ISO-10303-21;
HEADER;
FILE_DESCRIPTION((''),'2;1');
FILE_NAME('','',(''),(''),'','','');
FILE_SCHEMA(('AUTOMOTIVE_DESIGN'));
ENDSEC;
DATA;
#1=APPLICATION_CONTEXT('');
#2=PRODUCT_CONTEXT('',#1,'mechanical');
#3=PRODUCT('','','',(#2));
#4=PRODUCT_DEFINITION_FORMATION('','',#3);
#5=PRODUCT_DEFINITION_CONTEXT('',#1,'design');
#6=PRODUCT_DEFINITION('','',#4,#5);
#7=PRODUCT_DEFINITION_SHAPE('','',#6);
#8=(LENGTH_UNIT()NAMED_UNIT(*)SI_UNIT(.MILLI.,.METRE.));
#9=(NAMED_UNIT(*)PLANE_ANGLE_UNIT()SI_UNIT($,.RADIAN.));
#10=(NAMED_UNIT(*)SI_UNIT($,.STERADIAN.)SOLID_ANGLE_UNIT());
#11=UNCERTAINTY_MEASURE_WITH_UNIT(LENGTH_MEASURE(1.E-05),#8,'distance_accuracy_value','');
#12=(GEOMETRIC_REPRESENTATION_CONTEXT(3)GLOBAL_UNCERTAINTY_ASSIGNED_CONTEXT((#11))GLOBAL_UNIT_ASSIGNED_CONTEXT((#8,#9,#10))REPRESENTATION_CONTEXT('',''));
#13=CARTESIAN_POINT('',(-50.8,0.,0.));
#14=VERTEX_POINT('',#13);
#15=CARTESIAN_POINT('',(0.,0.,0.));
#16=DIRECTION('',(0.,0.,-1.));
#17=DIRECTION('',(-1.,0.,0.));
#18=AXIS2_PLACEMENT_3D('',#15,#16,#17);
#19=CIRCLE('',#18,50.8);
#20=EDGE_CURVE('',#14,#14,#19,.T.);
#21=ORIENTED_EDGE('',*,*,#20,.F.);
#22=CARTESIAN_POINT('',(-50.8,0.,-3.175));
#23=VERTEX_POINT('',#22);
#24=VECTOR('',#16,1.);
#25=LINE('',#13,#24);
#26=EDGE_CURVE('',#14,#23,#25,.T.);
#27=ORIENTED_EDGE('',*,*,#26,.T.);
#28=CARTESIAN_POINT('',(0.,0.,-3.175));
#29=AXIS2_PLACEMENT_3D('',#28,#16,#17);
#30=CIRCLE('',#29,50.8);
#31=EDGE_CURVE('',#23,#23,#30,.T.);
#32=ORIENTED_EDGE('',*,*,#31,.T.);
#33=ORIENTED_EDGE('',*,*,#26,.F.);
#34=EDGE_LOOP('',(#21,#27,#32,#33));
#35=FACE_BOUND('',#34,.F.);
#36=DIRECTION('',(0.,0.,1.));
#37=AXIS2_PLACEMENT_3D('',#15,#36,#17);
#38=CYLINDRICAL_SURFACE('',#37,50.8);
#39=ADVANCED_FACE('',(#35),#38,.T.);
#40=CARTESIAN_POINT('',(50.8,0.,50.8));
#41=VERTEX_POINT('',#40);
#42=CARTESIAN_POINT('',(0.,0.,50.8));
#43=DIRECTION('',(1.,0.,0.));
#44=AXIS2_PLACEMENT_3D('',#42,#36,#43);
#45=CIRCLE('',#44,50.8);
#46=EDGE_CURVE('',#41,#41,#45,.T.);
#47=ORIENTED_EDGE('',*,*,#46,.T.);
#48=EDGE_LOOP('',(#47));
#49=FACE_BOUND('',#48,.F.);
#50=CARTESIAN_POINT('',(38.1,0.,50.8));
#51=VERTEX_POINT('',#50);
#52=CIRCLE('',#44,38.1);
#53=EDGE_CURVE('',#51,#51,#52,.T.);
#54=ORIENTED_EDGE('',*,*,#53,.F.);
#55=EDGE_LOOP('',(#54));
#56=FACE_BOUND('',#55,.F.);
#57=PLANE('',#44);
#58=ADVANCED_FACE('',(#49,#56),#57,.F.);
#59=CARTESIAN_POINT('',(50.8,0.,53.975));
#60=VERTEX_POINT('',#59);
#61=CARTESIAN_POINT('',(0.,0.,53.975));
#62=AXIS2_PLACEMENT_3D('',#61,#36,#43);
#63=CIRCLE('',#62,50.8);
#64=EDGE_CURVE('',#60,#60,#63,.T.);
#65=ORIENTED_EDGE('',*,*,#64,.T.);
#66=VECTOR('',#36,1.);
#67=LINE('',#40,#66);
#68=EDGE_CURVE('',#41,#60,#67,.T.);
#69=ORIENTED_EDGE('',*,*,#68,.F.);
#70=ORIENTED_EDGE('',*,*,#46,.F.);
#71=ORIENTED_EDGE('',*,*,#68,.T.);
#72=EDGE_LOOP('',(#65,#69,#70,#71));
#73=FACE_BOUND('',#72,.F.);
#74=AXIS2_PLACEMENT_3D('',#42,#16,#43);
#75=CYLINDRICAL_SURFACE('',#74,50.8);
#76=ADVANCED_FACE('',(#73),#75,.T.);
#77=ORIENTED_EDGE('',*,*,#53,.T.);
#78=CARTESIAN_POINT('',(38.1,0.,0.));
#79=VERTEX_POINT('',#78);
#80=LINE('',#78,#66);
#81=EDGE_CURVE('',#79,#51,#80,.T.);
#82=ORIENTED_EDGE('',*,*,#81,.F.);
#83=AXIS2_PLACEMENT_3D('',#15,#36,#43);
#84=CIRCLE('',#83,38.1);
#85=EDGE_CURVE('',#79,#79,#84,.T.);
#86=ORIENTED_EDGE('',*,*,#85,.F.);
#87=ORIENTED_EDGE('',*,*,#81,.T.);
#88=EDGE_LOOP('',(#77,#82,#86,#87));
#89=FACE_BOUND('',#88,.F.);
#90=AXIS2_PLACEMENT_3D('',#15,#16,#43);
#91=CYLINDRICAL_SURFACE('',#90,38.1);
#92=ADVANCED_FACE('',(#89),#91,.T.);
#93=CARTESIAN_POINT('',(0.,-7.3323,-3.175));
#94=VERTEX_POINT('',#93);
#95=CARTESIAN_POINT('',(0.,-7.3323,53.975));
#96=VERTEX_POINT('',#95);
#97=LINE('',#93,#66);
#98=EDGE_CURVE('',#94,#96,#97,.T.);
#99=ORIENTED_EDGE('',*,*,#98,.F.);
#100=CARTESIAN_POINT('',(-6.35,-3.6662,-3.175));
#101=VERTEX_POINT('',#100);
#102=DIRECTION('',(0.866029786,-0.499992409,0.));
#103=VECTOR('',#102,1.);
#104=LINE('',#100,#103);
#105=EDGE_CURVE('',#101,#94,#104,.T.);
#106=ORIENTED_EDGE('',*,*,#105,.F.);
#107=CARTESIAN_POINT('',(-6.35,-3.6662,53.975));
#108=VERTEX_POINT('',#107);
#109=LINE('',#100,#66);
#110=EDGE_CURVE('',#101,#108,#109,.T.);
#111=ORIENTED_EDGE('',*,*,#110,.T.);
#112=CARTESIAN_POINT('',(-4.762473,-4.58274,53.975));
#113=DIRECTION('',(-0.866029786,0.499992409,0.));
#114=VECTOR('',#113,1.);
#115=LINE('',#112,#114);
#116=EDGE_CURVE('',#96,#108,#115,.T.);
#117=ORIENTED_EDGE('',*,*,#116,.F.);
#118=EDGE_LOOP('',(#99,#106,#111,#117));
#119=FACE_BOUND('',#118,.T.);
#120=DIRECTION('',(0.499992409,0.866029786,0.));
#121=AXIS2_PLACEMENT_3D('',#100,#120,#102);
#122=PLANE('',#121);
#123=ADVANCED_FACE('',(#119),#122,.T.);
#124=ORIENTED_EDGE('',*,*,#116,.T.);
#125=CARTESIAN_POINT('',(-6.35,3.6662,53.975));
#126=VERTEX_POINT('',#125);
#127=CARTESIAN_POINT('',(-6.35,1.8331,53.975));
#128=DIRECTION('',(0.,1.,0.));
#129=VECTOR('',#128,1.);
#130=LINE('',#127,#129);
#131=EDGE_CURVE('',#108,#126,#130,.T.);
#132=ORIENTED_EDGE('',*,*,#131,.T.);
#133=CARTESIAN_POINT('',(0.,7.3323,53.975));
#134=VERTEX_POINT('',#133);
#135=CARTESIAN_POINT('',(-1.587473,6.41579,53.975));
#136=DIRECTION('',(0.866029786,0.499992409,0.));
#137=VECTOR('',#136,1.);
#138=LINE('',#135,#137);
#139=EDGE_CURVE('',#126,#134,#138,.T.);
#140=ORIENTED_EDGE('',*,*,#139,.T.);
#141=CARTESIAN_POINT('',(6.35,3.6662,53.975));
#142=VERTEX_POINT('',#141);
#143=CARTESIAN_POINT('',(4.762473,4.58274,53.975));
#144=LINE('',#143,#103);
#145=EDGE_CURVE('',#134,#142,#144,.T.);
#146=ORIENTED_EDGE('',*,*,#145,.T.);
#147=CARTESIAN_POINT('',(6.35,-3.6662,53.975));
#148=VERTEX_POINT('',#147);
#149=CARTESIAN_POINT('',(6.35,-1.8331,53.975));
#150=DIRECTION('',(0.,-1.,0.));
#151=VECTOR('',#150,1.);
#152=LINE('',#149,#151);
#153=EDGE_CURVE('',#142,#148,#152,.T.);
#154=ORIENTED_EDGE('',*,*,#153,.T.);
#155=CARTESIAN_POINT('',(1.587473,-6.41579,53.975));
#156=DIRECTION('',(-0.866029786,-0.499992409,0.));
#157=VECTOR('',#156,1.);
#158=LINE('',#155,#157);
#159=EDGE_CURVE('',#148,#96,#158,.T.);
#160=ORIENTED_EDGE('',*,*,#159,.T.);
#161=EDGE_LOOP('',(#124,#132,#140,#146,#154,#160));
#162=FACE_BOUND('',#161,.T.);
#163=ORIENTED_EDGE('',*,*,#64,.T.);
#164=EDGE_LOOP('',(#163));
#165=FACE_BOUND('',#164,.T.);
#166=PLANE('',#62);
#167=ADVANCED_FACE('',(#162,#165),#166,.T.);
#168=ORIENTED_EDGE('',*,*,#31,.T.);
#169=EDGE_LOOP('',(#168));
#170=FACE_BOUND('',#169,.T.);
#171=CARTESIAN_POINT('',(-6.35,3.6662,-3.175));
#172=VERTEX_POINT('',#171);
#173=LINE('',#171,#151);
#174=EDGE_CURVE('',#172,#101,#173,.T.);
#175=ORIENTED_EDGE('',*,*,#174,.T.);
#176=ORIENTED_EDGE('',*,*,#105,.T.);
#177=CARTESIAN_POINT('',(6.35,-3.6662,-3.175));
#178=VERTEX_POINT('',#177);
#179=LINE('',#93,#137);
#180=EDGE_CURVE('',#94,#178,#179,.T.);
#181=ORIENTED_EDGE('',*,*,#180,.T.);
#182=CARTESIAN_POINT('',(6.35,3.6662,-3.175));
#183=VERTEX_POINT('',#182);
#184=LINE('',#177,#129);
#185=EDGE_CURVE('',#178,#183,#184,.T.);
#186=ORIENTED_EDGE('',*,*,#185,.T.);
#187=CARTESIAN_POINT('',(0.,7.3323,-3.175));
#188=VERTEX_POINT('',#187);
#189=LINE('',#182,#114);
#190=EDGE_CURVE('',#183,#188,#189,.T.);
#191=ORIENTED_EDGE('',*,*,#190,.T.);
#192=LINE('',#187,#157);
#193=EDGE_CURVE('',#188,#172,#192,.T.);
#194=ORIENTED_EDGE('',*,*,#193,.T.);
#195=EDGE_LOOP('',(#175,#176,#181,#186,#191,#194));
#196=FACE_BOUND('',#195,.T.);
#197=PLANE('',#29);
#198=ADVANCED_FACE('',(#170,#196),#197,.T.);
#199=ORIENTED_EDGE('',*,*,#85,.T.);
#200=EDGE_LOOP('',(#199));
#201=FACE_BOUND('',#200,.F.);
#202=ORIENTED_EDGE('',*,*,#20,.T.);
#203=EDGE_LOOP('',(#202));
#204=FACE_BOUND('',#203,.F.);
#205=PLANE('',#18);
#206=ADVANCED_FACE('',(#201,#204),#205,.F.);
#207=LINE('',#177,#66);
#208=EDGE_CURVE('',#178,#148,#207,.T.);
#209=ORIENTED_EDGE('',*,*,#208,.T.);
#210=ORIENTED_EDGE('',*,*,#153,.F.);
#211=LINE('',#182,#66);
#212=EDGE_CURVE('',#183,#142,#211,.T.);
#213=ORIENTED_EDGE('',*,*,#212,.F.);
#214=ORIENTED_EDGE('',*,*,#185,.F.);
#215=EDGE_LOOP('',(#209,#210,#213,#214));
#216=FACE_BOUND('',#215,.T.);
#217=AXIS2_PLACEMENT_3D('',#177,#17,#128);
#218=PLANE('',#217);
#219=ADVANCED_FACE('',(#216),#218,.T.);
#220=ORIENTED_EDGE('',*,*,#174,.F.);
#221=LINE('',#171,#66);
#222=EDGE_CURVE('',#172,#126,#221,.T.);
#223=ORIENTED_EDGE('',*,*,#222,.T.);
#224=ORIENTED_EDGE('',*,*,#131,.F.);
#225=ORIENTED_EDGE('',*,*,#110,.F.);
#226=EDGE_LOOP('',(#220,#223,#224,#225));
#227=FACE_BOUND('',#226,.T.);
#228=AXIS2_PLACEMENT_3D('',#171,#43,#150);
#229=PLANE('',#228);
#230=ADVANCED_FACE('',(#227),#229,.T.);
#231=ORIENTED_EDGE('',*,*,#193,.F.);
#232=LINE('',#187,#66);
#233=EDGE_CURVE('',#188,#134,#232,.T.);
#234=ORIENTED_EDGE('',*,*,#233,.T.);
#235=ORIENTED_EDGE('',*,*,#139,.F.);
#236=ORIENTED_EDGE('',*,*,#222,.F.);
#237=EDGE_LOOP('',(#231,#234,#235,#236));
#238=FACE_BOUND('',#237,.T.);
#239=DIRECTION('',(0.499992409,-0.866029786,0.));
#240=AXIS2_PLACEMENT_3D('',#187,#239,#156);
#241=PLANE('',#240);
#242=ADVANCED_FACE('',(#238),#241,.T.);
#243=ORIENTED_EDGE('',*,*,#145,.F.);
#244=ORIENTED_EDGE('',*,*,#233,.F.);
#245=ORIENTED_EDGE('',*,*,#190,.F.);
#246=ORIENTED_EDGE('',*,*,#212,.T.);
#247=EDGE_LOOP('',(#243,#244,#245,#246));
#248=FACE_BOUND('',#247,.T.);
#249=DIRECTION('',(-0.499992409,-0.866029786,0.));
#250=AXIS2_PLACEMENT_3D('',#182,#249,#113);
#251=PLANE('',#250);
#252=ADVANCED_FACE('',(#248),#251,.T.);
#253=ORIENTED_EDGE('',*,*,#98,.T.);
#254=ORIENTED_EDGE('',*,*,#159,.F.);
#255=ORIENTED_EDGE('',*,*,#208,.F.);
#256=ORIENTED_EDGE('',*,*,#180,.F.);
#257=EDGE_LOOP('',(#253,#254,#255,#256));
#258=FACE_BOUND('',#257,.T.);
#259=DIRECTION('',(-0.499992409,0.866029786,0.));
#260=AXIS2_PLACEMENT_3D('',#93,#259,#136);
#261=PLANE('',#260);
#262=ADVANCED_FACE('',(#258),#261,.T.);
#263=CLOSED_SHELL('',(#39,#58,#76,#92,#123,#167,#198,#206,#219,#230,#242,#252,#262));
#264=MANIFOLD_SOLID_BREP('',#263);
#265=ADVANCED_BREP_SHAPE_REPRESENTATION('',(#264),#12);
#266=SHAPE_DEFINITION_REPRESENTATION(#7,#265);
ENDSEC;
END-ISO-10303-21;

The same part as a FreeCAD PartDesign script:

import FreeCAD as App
import Part
import Sketcher
Q = App.Units.Quantity

doc = App.newDocument("Part")
params = doc.addObject("Spreadsheet::Sheet", "Params")
for row, (alias, value) in enumerate([
    ("sketch1_diameter", "3 in"),
    ("pad1_length", "2 in"),
    ("sketch2_diameter", "4 in"),
    ("pad2_length", "0.125 in"),
    ("sketch3_diameter", "4 in"),
    ("pad3_length", "0.125 in"),
], start=1):
    params.set(f"A{row}", alias)
    params.set(f"B{row}", "=" + value)
    params.setAlias(f"B{row}", alias)

body = doc.addObject("PartDesign::Body", "Body")

# Sketch on XY plane
sketch1 = body.newObject("Sketcher::SketchObject", "Sketch")
sketch1.AttachmentSupport = (doc.getObject("XY_Plane"), [""])
sketch1.MapMode = "FlatFace"
sketch1.addGeometry(Part.Circle(App.Vector(0, 0, 0), App.Vector(0, 0, 1), 38.1), False)
sketch1.addConstraint([
    Sketcher.Constraint("Coincident", 0, 3, -1, 1),
    Sketcher.Constraint("Diameter", 0, Q("3 in")),
])
sketch1.setExpression("Constraints[1]", "Params.sketch1_diameter")
pad1 = body.newObject("PartDesign::Pad", "Pad")
pad1.Profile = sketch1
pad1.setExpression("Length", "Params.pad1_length")

# Sketch on XY plane
sketch2 = body.newObject("Sketcher::SketchObject", "Sketch001")
sketch2.AttachmentSupport = (doc.getObject("XY_Plane"), [""])
sketch2.MapMode = "FlatFace"
sketch2.AttachmentOffset = App.Placement(App.Vector(0, 0, 2 * 25.4), App.Rotation())
sketch2.addGeometry(Part.Circle(App.Vector(0, 0, 0), App.Vector(0, 0, 1), 50.8), False)
sketch2.addConstraint([
    Sketcher.Constraint("Coincident", 0, 3, -1, 1),
    Sketcher.Constraint("Diameter", 0, Q("4 in")),
])
sketch2.setExpression("Constraints[1]", "Params.sketch2_diameter")
pad2 = body.newObject("PartDesign::Pad", "Pad001")
pad2.Profile = sketch2
pad2.setExpression("Length", "Params.pad2_length")

# Sketch on XY plane
sketch3 = body.newObject("Sketcher::SketchObject", "Sketch002")
sketch3.AttachmentSupport = (doc.getObject("XY_Plane"), [""])
sketch3.MapMode = "FlatFace"
sketch3.addGeometry(Part.Circle(App.Vector(0, 0, 0), App.Vector(0, 0, 1), 50.8), False)
sketch3.addConstraint([
    Sketcher.Constraint("Coincident", 0, 3, -1, 1),
    Sketcher.Constraint("Diameter", 0, Q("4 in")),
])
sketch3.setExpression("Constraints[1]", "Params.sketch3_diameter")
pad3 = body.newObject("PartDesign::Pad", "Pad002")
pad3.Profile = sketch3
pad3.setExpression("Length", "Params.pad3_length")
pad3.Reversed = True

# Sketch on XY plane
sketch4 = body.newObject("Sketcher::SketchObject", "Sketch003")
sketch4.AttachmentSupport = (doc.getObject("XY_Plane"), [""])
sketch4.MapMode = "FlatFace"
sketch4.AttachmentOffset = App.Placement(App.Vector(0, 0, -0.125 * 25.4), App.Rotation())
sketch4.addGeometry([
    Part.LineSegment(App.Vector(0, -7.3323, 0), App.Vector(-6.35, -3.6662, 0)),  # 0
    Part.LineSegment(App.Vector(-6.35, -3.6662, 0), App.Vector(-6.35, 3.6662, 0)),  # 1
    Part.LineSegment(App.Vector(-6.35, 3.6662, 0), App.Vector(0, 7.3323, 0)),  # 2
    Part.LineSegment(App.Vector(0, 7.3323, 0), App.Vector(6.35, 3.6662, 0)),  # 3
    Part.LineSegment(App.Vector(6.35, 3.6662, 0), App.Vector(6.35, -3.6662, 0)),  # 4
    Part.LineSegment(App.Vector(6.35, -3.6662, 0), App.Vector(0, -7.3323, 0)),  # 5
], False)
sketch4.addConstraint([
    Sketcher.Constraint("Coincident", 0, 2, 1, 1),
    Sketcher.Constraint("Coincident", 1, 2, 2, 1),
    Sketcher.Constraint("Coincident", 2, 2, 3, 1),
    Sketcher.Constraint("Coincident", 3, 2, 4, 1),
    Sketcher.Constraint("Coincident", 4, 2, 5, 1),
    Sketcher.Constraint("Coincident", 5, 2, 0, 1),
    Sketcher.Constraint("Vertical", 1),
    Sketcher.Constraint("Vertical", 4),
    Sketcher.Constraint("Symmetric", 0, 2, 3, 2, -1, 1),
    Sketcher.Constraint("Symmetric", 2, 2, 5, 2, -1, 1),
    Sketcher.Constraint("PointOnObject", 2, 2, -2),
    Sketcher.Constraint("Parallel", 2, 5),
    Sketcher.Constraint("Horizontal", 1, 2, 3, 2),
    Sketcher.Constraint("DistanceX", 1, 2, 3, 2, Q("0.5 in")),
    Sketcher.Constraint("Angle", 0, Q("150.0005 deg")),
    Sketcher.Constraint("DistanceY", 0, 2, 2, 2, Q("0.433 in")),
])
pocket1 = body.newObject("PartDesign::Pocket", "Pocket")
pocket1.Profile = sketch4
pocket1.Type = "ThroughAll"
pocket1.Reversed = True

doc.recompute()
